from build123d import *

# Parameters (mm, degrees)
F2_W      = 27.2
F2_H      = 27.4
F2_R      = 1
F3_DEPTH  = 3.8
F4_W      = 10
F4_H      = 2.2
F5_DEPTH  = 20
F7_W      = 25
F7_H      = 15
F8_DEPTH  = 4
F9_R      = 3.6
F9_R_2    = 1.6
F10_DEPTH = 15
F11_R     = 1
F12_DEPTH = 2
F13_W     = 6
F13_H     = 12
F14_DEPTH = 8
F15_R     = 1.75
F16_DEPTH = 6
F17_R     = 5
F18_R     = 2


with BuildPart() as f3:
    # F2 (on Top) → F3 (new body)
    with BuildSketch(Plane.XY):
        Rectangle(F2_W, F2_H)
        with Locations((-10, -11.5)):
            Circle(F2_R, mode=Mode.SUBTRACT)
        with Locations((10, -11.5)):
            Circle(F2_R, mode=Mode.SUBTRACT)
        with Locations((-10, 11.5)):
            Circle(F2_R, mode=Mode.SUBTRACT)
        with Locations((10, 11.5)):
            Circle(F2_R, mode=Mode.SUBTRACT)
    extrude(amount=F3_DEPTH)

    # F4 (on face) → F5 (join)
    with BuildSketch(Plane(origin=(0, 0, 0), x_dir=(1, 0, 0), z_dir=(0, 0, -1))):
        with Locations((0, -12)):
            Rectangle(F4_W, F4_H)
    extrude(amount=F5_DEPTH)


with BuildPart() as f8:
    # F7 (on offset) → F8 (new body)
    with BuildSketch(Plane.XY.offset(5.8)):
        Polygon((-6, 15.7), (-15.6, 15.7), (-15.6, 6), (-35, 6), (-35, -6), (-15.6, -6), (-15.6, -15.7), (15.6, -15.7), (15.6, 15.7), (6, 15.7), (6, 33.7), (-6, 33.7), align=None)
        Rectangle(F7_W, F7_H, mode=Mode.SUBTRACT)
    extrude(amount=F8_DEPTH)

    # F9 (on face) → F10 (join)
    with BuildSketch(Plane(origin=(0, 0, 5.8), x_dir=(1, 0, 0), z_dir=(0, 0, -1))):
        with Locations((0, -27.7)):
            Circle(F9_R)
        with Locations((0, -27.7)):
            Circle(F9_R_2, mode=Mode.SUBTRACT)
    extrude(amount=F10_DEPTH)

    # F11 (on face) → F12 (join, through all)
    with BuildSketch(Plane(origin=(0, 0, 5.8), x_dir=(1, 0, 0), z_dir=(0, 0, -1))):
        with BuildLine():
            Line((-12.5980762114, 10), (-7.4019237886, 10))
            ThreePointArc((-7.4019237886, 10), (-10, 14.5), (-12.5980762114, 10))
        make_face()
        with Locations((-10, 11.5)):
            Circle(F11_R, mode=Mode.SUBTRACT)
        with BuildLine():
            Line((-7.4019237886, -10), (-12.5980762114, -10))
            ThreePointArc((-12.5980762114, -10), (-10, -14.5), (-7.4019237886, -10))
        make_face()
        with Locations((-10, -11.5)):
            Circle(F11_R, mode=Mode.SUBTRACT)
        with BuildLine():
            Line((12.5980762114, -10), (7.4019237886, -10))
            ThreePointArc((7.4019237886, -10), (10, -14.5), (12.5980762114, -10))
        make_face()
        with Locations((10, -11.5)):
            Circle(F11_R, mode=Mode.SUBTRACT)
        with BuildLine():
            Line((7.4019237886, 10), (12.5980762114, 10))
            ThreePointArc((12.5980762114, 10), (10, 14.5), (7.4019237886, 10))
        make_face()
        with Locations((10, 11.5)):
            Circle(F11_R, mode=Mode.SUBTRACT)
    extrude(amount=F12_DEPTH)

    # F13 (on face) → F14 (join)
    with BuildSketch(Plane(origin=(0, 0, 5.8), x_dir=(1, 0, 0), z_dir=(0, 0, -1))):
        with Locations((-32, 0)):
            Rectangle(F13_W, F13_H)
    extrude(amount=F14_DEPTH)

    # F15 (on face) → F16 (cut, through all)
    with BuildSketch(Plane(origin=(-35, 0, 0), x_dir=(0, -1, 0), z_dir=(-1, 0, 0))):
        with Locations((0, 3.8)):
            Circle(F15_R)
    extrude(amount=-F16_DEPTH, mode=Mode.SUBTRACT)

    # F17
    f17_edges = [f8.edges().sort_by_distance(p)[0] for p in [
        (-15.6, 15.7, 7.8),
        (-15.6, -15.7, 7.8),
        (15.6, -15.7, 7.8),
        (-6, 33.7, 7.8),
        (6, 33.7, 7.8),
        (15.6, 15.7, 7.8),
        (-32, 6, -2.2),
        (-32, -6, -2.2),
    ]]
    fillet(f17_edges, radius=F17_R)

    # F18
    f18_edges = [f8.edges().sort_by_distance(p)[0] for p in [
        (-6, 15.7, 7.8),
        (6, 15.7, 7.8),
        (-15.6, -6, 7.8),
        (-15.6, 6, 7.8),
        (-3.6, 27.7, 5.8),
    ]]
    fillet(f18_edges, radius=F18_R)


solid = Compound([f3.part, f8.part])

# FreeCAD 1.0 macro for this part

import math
import FreeCAD as App
import Part
import Sketcher
from FreeCAD import Vector
Q = App.Units.Quantity


def edges_at(feature, points):
    """Names of the edges that pass closest to the given points."""
    edges = feature.Shape.Edges
    near = lambda p: min(range(len(edges)), key=lambda i: edges[i].distToShape(Part.Vertex(*p))[0])
    return sorted({f"Edge{near(p) + 1}" for p in points})


def add_polygon(sketch, points):
    """Adds a closed chain of lines whose ends are joined by coincident constraints."""
    first, n = sketch.GeometryCount, len(points)
    for a, b in zip(points, points[1:] + points[:1]):
        sketch.addGeometry(Part.LineSegment(App.Vector(*a, 0), App.Vector(*b, 0)), False)
    for i in range(n):
        sketch.addConstraint(Sketcher.Constraint("Coincident", first + i, 2, first + (i + 1) % n, 1))

doc = App.newDocument("Part")
params = doc.addObject("Spreadsheet::Sheet", "Params")
for row, (alias, value) in enumerate([
    ("sketch1_diameter", "2 mm"),
    ("sketch1_width", "27.2 mm"),
    ("sketch1_height", "27.4 mm"),
    ("pad1_length", "3.8 mm"),
    ("sketch2_width", "10 mm"),
    ("sketch2_height", "2.2 mm"),
    ("pad2_length", "20 mm"),
    ("sketch3_width", "12 mm"),
    ("sketch3_width2", "25 mm"),
    ("sketch3_height", "18 mm"),
    ("sketch3_height2", "15 mm"),
    ("sketch3_width3", "9.6 mm"),
    ("pad3_length", "4 mm"),
    ("sketch4_diameter", "7.2 mm"),
    ("sketch4_diameter2", "3.2 mm"),
    ("pad4_length", "15 mm"),
    ("sketch5_diameter", "2 mm"),
    ("sketch5_radius", "3 mm"),
    ("pad5_length", "2 mm"),
    ("sketch6_width", "6 mm"),
    ("sketch6_height", "12 mm"),
    ("pad6_length", "8 mm"),
    ("sketch7_diameter", "3.5 mm"),
    ("fillet_radius", "5 mm"),
    ("fillet2_radius", "2 mm"),
], start=1):
    params.set(f"A{row}", alias)
    params.set(f"B{row}", "=" + value)
    params.setAlias(f"B{row}", alias)

body = doc.addObject("PartDesign::Body", "Body")

# Sketch on XY plane
sketch1 = body.newObject("Sketcher::SketchObject", "Sketch")
sketch1.AttachmentSupport = (doc.getObject("XY_Plane"), [""])
sketch1.MapMode = "FlatFace"
add_polygon(sketch1, [(-13.6, 13.7), (-13.6, -13.7), (13.6, -13.7), (13.6, 13.7)])  # lines 0-3
sketch1.addGeometry(Part.Circle(Vector(-10, -11.5, 0), Vector(0, 0, 1), 1), False)  # 4
sketch1.addGeometry(Part.Circle(Vector(10, -11.5, 0), Vector(0, 0, 1), 1), False)  # 5
sketch1.addGeometry(Part.Circle(Vector(-10, 11.5, 0), Vector(0, 0, 1), 1), False)  # 6
sketch1.addGeometry(Part.Circle(Vector(10, 11.5, 0), Vector(0, 0, 1), 1), False)  # 7
sketch1.addConstraint([
    Sketcher.Constraint("Vertical", 0),
    Sketcher.Constraint("Horizontal", 1),
    Sketcher.Constraint("Vertical", 2),
    Sketcher.Constraint("Horizontal", 3),
    Sketcher.Constraint("Equal", 4, 5),
    Sketcher.Constraint("Equal", 5, 6),
    Sketcher.Constraint("Equal", 6, 7),
    Sketcher.Constraint("Symmetric", 5, 3, 6, 3, -1, 1),
    Sketcher.Constraint("Symmetric", 4, 3, 7, 3, -1, 1),
    Sketcher.Constraint("Symmetric", 0, 2, 2, 2, -1, 1),
    Sketcher.Constraint("Symmetric", 4, 3, 5, 3, -2),
    Sketcher.Constraint("Diameter", 4, Q("2 mm")),
    Sketcher.Constraint("DistanceX", 1, 1, 1, 2, Q("27.2 mm")),
    Sketcher.Constraint("DistanceY", 0, 2, 0, 1, Q("27.4 mm")),
    Sketcher.Constraint("DistanceX", 4, 3, -1, 1, Q("10 mm")),
    Sketcher.Constraint("DistanceY", 4, 3, 6, 3, Q("23 mm")),
])
sketch1.setExpression("Constraints[15]", "Params.sketch1_diameter")
sketch1.setExpression("Constraints[16]", "Params.sketch1_width")
sketch1.setExpression("Constraints[17]", "Params.sketch1_height")
pad1 = body.newObject("PartDesign::Pad", "Pad")
pad1.Profile = sketch1
pad1.setExpression("Length", "Params.pad1_length")

# Sketch on XY plane
sketch2 = body.newObject("Sketcher::SketchObject", "Sketch001")
sketch2.AttachmentSupport = (doc.getObject("XY_Plane"), [""])
sketch2.MapMode = "FlatFace"
add_polygon(sketch2, [(-5, 10.9), (-5, 13.1), (5, 13.1), (5, 10.9)])  # lines 0-3
sketch2.addConstraint([
    Sketcher.Constraint("Vertical", 0),
    Sketcher.Constraint("Horizontal", 1),
    Sketcher.Constraint("Vertical", 2),
    Sketcher.Constraint("Horizontal", 3),
    Sketcher.Constraint("DistanceX", 1, 1, 1, 2, Q("10 mm")),
    Sketcher.Constraint("DistanceY", 0, 1, 0, 2, Q("2.2 mm")),
    Sketcher.Constraint("DistanceX", 0, 2, -1, 1, Q("5 mm")),
    Sketcher.Constraint("DistanceY", -1, 1, 0, 2, Q("13.1 mm")),
])
sketch2.setExpression("Constraints[8]", "Params.sketch2_width")
sketch2.setExpression("Constraints[9]", "Params.sketch2_height")
pad2 = body.newObject("PartDesign::Pad", "Pad001")
pad2.Profile = sketch2
pad2.setExpression("Length", "Params.pad2_length")
pad2.Reversed = True
body2 = doc.addObject("PartDesign::Body", "Body001")

# Sketch on XY plane
sketch3 = body2.newObject("Sketcher::SketchObject", "Sketch002")
sketch3.AttachmentSupport = (doc.getObject("XY_Plane001"), [""])
sketch3.MapMode = "FlatFace"
sketch3.AttachmentOffset = App.Placement(Vector(0, 0, 5.8), App.Rotation())
add_polygon(sketch3, [(-6, 16), (-16, 16), (-16, 6), (-35, 6), (-35, -6), (-16, -6), (-16, -16), (16, -16), (16, 16), (6, 16), (6, 34), (-6, 34)])  # lines 0-11
add_polygon(sketch3, [(12, -8), (-12, -8), (-12, 8), (12, 8)])  # lines 12-15
sketch3.addConstraint([
    Sketcher.Constraint("Horizontal", 0),
    Sketcher.Constraint("Vertical", 1),
    Sketcher.Constraint("Horizontal", 2),
    Sketcher.Constraint("Vertical", 3),
    Sketcher.Constraint("Horizontal", 4),
    Sketcher.Constraint("Vertical", 5),
    Sketcher.Constraint("Horizontal", 6),
    Sketcher.Constraint("Vertical", 7),
    Sketcher.Constraint("Horizontal", 8),
    Sketcher.Constraint("Vertical", 9),
    Sketcher.Constraint("Horizontal", 10),
    Sketcher.Constraint("Vertical", 11),
    Sketcher.Constraint("Horizontal", 12),
    Sketcher.Constraint("Vertical", 13),
    Sketcher.Constraint("Horizontal", 14),
    Sketcher.Constraint("Vertical", 15),
    Sketcher.Constraint("Symmetric", 0, 2, 6, 2, -1, 1),
    Sketcher.Constraint("Symmetric", 5, 2, 7, 2, -1, 1),
    Sketcher.Constraint("Symmetric", 12, 2, 14, 2, -1, 1),
    Sketcher.Constraint("Equal", 0, 8),
    Sketcher.Constraint("Equal", 10, 3),
    Sketcher.Constraint("Equal", 1, 5),
    Sketcher.Constraint("DistanceX", 10, 2, 10, 1, Q("12 mm")),
    Sketcher.Constraint("DistanceX", 12, 2, 12, 1, Q("25 mm")),
    Sketcher.Constraint("DistanceY", 9, 1, 9, 2, Q("18 mm")),
    Sketcher.Constraint("DistanceY", 13, 1, 13, 2, Q("15 mm")),
    Sketcher.Constraint("DistanceX", 0, 2, 0, 1, Q("9.6 mm")),
    Sketcher.Constraint("DistanceX", 2, 2, 2, 1, Q("19.4 mm")),
    Sketcher.Constraint("DistanceY", 1, 2, 1, 1, Q("9.7 mm")),
])
sketch3.setExpression("Constraints[38]", "Params.sketch3_width")
sketch3.setExpression("Constraints[39]", "Params.sketch3_width2")
sketch3.setExpression("Constraints[40]", "Params.sketch3_height")
sketch3.setExpression("Constraints[41]", "Params.sketch3_height2")
sketch3.setExpression("Constraints[42]", "Params.sketch3_width3")
pad3 = body2.newObject("PartDesign::Pad", "Pad002")
pad3.Profile = sketch3
pad3.setExpression("Length", "Params.pad3_length")

# Sketch on XY plane
sketch4 = body2.newObject("Sketcher::SketchObject", "Sketch003")
sketch4.AttachmentSupport = (doc.getObject("XY_Plane001"), [""])
sketch4.MapMode = "FlatFace"
sketch4.AttachmentOffset = App.Placement(Vector(0, 0, 5.8), App.Rotation())
sketch4.addGeometry([
    Part.Circle(Vector(0, 27.7, 0), Vector(0, 0, 1), 3.6),
    Part.Circle(Vector(0, 27.7, 0), Vector(0, 0, 1), 1.6),
], False)
sketch4.addConstraint([
    Sketcher.Constraint("Coincident", 1, 3, 0, 3),
    Sketcher.Constraint("PointOnObject", 0, 3, -2),
    Sketcher.Constraint("Diameter", 0, Q("7.2 mm")),
    Sketcher.Constraint("Diameter", 1, Q("3.2 mm")),
    Sketcher.Constraint("DistanceY", -1, 1, 0, 3, Q("27.7 mm")),
])
sketch4.setExpression("Constraints[2]", "Params.sketch4_diameter")
sketch4.setExpression("Constraints[3]", "Params.sketch4_diameter2")
pad4 = body2.newObject("PartDesign::Pad", "Pad003")
pad4.Profile = sketch4
pad4.setExpression("Length", "Params.pad4_length")
pad4.Reversed = True

# Sketch on XY plane
sketch5 = body2.newObject("Sketcher::SketchObject", "Sketch004")
sketch5.AttachmentSupport = (doc.getObject("XY_Plane001"), [""])
sketch5.MapMode = "FlatFace"
sketch5.AttachmentOffset = App.Placement(Vector(0, 0, 5.8), App.Rotation())
sketch5.addGeometry([
    Part.LineSegment(Vector(-12.6, -10, 0), Vector(-7.4, -10, 0)),  # 0
    Part.ArcOfCircle(Part.Circle(Vector(-10, -11.5, 0), Vector(0, 0, 1), 3), math.radians(150), math.radians(390)),  # 1
    Part.Circle(Vector(-10, -11.5, 0), Vector(0, 0, 1), 1),  # 2
    Part.LineSegment(Vector(-7.4, 10, 0), Vector(-12.6, 10, 0)),  # 3
    Part.ArcOfCircle(Part.Circle(Vector(-10, 11.5, 0), Vector(0, 0, 1), 3), math.radians(-30), math.radians(210)),  # 4
    Part.Circle(Vector(-10, 11.5, 0), Vector(0, 0, 1), 1),  # 5
    Part.LineSegment(Vector(12.6, 10, 0), Vector(7.4, 10, 0)),  # 6
    Part.ArcOfCircle(Part.Circle(Vector(10, 11.5, 0), Vector(0, 0, 1), 3), math.radians(-30), math.radians(210)),  # 7
    Part.Circle(Vector(10, 11.5, 0), Vector(0, 0, 1), 1),  # 8
    Part.LineSegment(Vector(7.4, -10, 0), Vector(12.6, -10, 0)),  # 9
    Part.ArcOfCircle(Part.Circle(Vector(10, -11.5, 0), Vector(0, 0, 1), 3), math.radians(150), math.radians(390)),  # 10
    Part.Circle(Vector(10, -11.5, 0), Vector(0, 0, 1), 1),  # 11
], False)
sketch5.addConstraint([
    Sketcher.Constraint("Coincident", 0, 1, 1, 1),
    Sketcher.Constraint("Coincident", 1, 2, 0, 2),
    Sketcher.Constraint("Coincident", 3, 1, 4, 1),
    Sketcher.Constraint("Coincident", 4, 2, 3, 2),
    Sketcher.Constraint("Coincident", 6, 1, 7, 1),
    Sketcher.Constraint("Coincident", 7, 2, 6, 2),
    Sketcher.Constraint("Coincident", 9, 1, 10, 1),
    Sketcher.Constraint("Coincident", 10, 2, 9, 2),
    Sketcher.Constraint("Horizontal", 0),
    Sketcher.Constraint("Horizontal", 3),
    Sketcher.Constraint("Horizontal", 6),
    Sketcher.Constraint("Horizontal", 9),
    Sketcher.Constraint("Coincident", 2, 3, 1, 3),
    Sketcher.Constraint("Coincident", 5, 3, 4, 3),
    Sketcher.Constraint("Coincident", 8, 3, 7, 3),
    Sketcher.Constraint("Coincident", 11, 3, 10, 3),
    Sketcher.Constraint("Equal", 1, 4),
    Sketcher.Constraint("Equal", 2, 5),
    Sketcher.Constraint("Equal", 4, 7),
    Sketcher.Constraint("Equal", 5, 8),
    Sketcher.Constraint("Equal", 7, 10),
    Sketcher.Constraint("Equal", 8, 11),
    Sketcher.Constraint("Symmetric", 1, 3, 7, 3, -1, 1),
    Sketcher.Constraint("Symmetric", 4, 3, 10, 3, -1, 1),
    Sketcher.Constraint("Symmetric", 4, 3, 7, 3, -2),
    Sketcher.Constraint("Horizontal", 4, 2, 6, 1),
    Sketcher.Constraint("Horizontal", 1, 2, 9, 1),
    Sketcher.Constraint("Vertical", 1, 2, 3, 1),
    Sketcher.Constraint("Diameter", 2, Q("2 mm")),
    Sketcher.Constraint("Radius", 1, Q("3 mm")),
    Sketcher.Constraint("DistanceX", 1, 3, -1, 1, Q("10 mm")),
    Sketcher.Constraint("DistanceY", 0, 1, -1, 1, Q("10 mm")),
    Sketcher.Constraint("DistanceY", 1, 3, 4, 3, Q("23 mm")),
])
sketch5.setExpression("Constraints[28]", "Params.sketch5_diameter")
sketch5.setExpression("Constraints[29]", "Params.sketch5_radius")
pad5 = body2.newObject("PartDesign::Pad", "Pad004")
pad5.Profile = sketch5
pad5.setExpression("Length", "Params.pad5_length")
pad5.Reversed = True

# Sketch on XY plane
sketch6 = body2.newObject("Sketcher::SketchObject", "Sketch005")
sketch6.AttachmentSupport = (doc.getObject("XY_Plane001"), [""])
sketch6.MapMode = "FlatFace"
sketch6.AttachmentOffset = App.Placement(Vector(0, 0, 5.8), App.Rotation())
add_polygon(sketch6, [(-35, -6), (-35, 6), (-29, 6), (-29, -6)])  # lines 0-3
sketch6.addConstraint([
    Sketcher.Constraint("Vertical", 0),
    Sketcher.Constraint("Horizontal", 1),
    Sketcher.Constraint("Vertical", 2),
    Sketcher.Constraint("Horizontal", 3),
    Sketcher.Constraint("DistanceX", 1, 1, 1, 2, Q("6 mm")),
    Sketcher.Constraint("DistanceY", 0, 1, 0, 2, Q("12 mm")),
    Sketcher.Constraint("DistanceX", 0, 2, -1, 1, Q("35 mm")),
    Sketcher.Constraint("DistanceY", -1, 1, 0, 2, Q("6 mm")),
])
sketch6.setExpression("Constraints[8]", "Params.sketch6_width")
sketch6.setExpression("Constraints[9]", "Params.sketch6_height")
pad6 = body2.newObject("PartDesign::Pad", "Pad005")
pad6.Profile = sketch6
pad6.setExpression("Length", "Params.pad6_length")
pad6.Reversed = True

# Sketch on YZ plane
sketch7 = body2.newObject("Sketcher::SketchObject", "Sketch006")
sketch7.AttachmentSupport = (doc.getObject("YZ_Plane001"), [""])
sketch7.MapMode = "FlatFace"
sketch7.AttachmentOffset = App.Placement(Vector(0, 0, -35), App.Rotation())
sketch7.addGeometry(Part.Circle(Vector(0, 3.8, 0), Vector(0, 0, 1), 1.8), False)
sketch7.addConstraint([
    Sketcher.Constraint("PointOnObject", 0, 3, -2),
    Sketcher.Constraint("Diameter", 0, Q("3.5 mm")),
    Sketcher.Constraint("DistanceY", -1, 1, 0, 3, Q("3.8 mm")),
])
sketch7.setExpression("Constraints[1]", "Params.sketch7_diameter")
pocket1 = body2.newObject("PartDesign::Pocket", "Pocket")
pocket1.Profile = sketch7
pocket1.Type = "ThroughAll"
pocket1.Reversed = True
doc.recompute()

fillet = body2.newObject("PartDesign::Fillet", "Fillet")
fillet.Base = (pocket1, edges_at(pocket1, [
    (-15.6, 15.7, 7.8),
    (-15.6, -15.7, 7.8),
    (15.6, -15.7, 7.8),
    (-6, 33.7, 7.8),
    (6, 33.7, 7.8),
    (15.6, 15.7, 7.8),
    (-32, 6, -2.2),
    (-32, -6, -2.2),
]))
fillet.setExpression("Radius", "Params.fillet_radius")
doc.recompute()

fillet2 = body2.newObject("PartDesign::Fillet", "Fillet001")
fillet2.Base = (fillet, edges_at(fillet, [
    (-6, 15.7, 7.8),
    (6, 15.7, 7.8),
    (-15.6, -6, 7.8),
    (-15.6, 6, 7.8),
    (-3.6, 27.7, 5.8),
]))
fillet2.setExpression("Radius", "Params.fillet2_radius")

doc.recompute()
